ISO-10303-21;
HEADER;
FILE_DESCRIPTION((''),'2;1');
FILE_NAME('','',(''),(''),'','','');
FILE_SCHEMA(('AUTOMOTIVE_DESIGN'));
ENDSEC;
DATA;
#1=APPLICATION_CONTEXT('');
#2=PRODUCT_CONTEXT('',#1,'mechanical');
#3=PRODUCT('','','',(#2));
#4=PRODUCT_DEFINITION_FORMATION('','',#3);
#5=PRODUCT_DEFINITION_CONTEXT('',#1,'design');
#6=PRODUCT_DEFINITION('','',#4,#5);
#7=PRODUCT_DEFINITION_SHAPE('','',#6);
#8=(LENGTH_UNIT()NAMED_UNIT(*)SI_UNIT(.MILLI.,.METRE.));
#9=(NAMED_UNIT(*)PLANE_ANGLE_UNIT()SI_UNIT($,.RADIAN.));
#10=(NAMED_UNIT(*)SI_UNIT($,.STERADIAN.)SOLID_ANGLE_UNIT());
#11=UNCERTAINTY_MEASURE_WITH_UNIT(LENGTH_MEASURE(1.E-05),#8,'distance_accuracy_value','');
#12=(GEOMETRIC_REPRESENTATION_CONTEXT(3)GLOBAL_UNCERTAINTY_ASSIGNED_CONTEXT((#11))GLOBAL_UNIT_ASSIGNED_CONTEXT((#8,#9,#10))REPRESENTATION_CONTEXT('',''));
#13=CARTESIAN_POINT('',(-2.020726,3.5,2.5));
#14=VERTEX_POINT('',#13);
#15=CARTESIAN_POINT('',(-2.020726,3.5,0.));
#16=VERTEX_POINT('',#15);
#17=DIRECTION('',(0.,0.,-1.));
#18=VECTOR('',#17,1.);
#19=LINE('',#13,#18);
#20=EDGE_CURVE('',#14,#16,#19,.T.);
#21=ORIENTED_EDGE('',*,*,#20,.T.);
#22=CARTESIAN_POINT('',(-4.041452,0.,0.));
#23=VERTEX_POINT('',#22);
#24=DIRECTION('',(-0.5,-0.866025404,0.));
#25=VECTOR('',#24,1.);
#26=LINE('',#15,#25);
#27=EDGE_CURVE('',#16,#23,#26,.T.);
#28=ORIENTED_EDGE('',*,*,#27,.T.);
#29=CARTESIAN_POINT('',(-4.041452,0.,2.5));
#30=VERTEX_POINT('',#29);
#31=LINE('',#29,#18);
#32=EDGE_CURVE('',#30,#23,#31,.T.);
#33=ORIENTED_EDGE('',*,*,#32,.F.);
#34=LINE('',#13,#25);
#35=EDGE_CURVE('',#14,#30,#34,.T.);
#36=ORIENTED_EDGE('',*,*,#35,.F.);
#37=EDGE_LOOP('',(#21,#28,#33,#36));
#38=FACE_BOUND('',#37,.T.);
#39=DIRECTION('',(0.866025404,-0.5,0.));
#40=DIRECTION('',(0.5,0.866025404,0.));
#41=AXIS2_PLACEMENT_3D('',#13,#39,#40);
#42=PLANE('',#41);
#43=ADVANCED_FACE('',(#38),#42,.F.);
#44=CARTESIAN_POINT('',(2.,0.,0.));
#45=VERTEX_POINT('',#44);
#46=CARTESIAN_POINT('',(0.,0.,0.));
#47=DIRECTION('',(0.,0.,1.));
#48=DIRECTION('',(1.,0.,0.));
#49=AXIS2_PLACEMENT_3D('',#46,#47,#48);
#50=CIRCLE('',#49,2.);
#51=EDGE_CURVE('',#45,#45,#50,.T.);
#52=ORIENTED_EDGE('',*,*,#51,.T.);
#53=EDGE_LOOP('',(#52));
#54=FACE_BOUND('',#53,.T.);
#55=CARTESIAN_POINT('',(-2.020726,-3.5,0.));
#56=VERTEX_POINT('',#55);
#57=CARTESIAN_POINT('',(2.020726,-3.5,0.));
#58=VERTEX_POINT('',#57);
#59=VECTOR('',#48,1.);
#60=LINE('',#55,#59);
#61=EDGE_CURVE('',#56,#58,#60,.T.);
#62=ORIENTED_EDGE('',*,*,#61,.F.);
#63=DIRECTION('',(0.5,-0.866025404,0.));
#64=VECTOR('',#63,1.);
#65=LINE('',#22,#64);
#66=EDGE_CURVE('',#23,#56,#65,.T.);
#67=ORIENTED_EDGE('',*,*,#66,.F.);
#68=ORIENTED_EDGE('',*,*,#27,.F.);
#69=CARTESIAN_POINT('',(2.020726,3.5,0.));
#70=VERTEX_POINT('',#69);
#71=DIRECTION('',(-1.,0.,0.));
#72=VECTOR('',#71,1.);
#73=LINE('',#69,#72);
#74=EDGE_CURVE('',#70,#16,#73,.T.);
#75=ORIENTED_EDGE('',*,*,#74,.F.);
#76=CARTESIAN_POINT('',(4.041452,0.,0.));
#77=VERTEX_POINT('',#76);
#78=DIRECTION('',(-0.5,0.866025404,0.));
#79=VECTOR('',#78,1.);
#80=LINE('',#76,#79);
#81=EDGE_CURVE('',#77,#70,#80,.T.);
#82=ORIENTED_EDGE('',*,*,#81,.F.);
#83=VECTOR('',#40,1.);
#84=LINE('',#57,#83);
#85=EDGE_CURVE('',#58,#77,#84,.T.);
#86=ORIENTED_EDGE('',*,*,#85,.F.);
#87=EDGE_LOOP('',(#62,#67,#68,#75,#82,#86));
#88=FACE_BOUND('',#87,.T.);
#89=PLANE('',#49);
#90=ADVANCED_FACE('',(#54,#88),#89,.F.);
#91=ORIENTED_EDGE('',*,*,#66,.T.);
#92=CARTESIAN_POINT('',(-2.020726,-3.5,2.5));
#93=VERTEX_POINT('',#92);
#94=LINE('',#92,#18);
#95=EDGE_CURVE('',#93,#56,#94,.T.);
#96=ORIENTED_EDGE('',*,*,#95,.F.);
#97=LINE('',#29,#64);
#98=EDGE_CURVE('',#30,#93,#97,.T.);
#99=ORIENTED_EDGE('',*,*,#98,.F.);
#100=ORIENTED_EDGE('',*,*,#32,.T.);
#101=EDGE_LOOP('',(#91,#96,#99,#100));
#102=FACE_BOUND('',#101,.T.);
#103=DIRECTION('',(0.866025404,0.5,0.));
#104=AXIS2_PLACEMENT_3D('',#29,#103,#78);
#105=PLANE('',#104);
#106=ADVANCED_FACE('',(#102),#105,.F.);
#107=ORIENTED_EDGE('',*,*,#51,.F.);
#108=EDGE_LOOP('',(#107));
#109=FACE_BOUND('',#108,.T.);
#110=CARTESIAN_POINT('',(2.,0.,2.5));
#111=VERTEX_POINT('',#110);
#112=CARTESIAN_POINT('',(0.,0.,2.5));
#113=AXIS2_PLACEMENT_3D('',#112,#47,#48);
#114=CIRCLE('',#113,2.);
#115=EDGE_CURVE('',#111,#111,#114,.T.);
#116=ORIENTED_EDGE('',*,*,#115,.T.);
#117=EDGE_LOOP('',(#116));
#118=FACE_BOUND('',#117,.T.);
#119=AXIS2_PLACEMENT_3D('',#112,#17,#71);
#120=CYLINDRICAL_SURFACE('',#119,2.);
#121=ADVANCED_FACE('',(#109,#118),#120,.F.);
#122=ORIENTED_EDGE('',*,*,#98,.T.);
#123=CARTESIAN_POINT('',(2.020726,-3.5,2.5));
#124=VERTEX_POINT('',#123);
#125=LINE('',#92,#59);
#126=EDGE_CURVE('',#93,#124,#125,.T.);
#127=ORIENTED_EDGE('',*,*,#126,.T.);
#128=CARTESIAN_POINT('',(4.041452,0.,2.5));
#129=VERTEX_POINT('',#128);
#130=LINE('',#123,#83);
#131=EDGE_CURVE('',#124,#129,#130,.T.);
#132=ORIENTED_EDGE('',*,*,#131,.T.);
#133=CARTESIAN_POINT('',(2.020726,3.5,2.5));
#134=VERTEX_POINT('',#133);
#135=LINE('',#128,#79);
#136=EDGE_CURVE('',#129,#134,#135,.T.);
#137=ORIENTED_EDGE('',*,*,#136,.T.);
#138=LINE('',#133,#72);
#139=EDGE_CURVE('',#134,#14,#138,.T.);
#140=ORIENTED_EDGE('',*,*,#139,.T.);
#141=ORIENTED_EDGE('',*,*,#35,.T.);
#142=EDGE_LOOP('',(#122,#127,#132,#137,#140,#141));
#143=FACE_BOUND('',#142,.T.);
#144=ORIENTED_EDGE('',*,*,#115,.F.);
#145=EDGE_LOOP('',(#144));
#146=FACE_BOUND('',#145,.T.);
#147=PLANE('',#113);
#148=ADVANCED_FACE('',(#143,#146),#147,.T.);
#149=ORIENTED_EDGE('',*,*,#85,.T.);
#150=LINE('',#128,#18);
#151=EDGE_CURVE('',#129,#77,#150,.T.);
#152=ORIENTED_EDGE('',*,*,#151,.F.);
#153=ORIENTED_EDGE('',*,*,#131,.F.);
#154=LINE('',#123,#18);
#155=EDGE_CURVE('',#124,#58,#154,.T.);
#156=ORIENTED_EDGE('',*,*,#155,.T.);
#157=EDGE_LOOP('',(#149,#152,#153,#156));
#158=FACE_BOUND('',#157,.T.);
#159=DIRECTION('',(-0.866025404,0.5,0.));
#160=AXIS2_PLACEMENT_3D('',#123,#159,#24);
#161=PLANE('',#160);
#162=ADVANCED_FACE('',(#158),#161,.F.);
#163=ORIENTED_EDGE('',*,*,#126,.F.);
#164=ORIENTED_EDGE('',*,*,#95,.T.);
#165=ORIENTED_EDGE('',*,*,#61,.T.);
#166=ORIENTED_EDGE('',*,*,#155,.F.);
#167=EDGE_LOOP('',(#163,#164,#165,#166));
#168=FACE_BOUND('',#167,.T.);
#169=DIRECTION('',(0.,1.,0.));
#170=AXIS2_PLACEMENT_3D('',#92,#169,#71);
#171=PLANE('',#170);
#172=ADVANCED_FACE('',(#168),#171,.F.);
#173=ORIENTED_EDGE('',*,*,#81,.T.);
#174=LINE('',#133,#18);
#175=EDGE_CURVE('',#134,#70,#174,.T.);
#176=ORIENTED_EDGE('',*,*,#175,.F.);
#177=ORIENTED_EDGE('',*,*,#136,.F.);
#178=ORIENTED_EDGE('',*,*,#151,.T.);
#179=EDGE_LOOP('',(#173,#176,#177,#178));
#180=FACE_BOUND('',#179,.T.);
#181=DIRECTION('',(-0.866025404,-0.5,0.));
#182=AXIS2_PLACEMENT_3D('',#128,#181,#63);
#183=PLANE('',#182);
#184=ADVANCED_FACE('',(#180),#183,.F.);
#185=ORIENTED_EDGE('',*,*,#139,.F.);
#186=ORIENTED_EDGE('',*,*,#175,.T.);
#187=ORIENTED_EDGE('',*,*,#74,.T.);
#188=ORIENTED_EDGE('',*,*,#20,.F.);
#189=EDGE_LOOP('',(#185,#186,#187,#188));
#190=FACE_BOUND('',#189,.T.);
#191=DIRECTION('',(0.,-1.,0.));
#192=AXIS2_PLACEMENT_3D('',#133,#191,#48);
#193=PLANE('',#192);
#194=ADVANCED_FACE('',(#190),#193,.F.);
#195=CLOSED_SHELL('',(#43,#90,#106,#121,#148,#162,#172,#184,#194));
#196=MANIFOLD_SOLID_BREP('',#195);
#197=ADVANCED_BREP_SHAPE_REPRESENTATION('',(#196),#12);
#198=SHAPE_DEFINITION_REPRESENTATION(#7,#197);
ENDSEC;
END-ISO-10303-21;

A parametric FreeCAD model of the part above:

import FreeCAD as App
import Part
import Sketcher
from FreeCAD import Vector
Q = App.Units.Quantity


def add_polygon(sketch, points):
    """Adds a closed chain of lines whose ends are joined by coincident constraints."""
    first, n = sketch.GeometryCount, len(points)
    for a, b in zip(points, points[1:] + points[:1]):
        sketch.addGeometry(Part.LineSegment(App.Vector(*a, 0), App.Vector(*b, 0)), False)
    for i in range(n):
        sketch.addConstraint(Sketcher.Constraint("Coincident", first + i, 2, first + (i + 1) % n, 1))

doc = App.newDocument("Part")
body = doc.addObject("PartDesign::Body", "Body")

sketch1 = body.newObject("Sketcher::SketchObject", "Sketch")
sketch1.AttachmentSupport = (doc.getObject("XY_Plane"), [""])
sketch1.MapMode = "FlatFace"
add_polygon(sketch1, [(4.041452, 0), (2.020726, 3.5), (-2.020726, 3.5), (-4.041452, 0), (-2.020726, -3.5), (2.020726, -3.5)])
sketch1.addGeometry(Part.Circle(Vector(0, 0, 0), Vector(0, 0, 1), 2), False)
sketch1.addConstraint(Sketcher.Constraint("Horizontal", 1))
sketch1.addConstraint(Sketcher.Constraint("Horizontal", 4))
sketch1.addConstraint(Sketcher.Constraint("Coincident", 6, 3, -1, 1))
sketch1.addConstraint(Sketcher.Constraint("Symmetric", 0, 2, 3, 2, -1, 1))
sketch1.addConstraint(Sketcher.Constraint("Symmetric", 2, 2, 5, 2, -1, 1))
sketch1.addConstraint(Sketcher.Constraint("PointOnObject", 2, 2, -1))
sketch1.addConstraint(Sketcher.Constraint("Parallel", 2, 5))
sketch1.addConstraint(Sketcher.Constraint("Vertical", 1, 2, 3, 2))
sketch1.addConstraint(Sketcher.Constraint("Diameter", 6, 4.0))
sketch1.addConstraint(Sketcher.Constraint("Angle", 0, Q("120 deg")))
sketch1.addConstraint(Sketcher.Constraint("DistanceY", 3, 2, 1, 2, 7.0))
sketch1.addConstraint(Sketcher.Constraint("DistanceX", 1, 2, 1, 1, 4.041452))
pad1 = body.newObject("PartDesign::Pad", "Pad")
pad1.Profile = sketch1
pad1.Length = 2.5

doc.recompute()
